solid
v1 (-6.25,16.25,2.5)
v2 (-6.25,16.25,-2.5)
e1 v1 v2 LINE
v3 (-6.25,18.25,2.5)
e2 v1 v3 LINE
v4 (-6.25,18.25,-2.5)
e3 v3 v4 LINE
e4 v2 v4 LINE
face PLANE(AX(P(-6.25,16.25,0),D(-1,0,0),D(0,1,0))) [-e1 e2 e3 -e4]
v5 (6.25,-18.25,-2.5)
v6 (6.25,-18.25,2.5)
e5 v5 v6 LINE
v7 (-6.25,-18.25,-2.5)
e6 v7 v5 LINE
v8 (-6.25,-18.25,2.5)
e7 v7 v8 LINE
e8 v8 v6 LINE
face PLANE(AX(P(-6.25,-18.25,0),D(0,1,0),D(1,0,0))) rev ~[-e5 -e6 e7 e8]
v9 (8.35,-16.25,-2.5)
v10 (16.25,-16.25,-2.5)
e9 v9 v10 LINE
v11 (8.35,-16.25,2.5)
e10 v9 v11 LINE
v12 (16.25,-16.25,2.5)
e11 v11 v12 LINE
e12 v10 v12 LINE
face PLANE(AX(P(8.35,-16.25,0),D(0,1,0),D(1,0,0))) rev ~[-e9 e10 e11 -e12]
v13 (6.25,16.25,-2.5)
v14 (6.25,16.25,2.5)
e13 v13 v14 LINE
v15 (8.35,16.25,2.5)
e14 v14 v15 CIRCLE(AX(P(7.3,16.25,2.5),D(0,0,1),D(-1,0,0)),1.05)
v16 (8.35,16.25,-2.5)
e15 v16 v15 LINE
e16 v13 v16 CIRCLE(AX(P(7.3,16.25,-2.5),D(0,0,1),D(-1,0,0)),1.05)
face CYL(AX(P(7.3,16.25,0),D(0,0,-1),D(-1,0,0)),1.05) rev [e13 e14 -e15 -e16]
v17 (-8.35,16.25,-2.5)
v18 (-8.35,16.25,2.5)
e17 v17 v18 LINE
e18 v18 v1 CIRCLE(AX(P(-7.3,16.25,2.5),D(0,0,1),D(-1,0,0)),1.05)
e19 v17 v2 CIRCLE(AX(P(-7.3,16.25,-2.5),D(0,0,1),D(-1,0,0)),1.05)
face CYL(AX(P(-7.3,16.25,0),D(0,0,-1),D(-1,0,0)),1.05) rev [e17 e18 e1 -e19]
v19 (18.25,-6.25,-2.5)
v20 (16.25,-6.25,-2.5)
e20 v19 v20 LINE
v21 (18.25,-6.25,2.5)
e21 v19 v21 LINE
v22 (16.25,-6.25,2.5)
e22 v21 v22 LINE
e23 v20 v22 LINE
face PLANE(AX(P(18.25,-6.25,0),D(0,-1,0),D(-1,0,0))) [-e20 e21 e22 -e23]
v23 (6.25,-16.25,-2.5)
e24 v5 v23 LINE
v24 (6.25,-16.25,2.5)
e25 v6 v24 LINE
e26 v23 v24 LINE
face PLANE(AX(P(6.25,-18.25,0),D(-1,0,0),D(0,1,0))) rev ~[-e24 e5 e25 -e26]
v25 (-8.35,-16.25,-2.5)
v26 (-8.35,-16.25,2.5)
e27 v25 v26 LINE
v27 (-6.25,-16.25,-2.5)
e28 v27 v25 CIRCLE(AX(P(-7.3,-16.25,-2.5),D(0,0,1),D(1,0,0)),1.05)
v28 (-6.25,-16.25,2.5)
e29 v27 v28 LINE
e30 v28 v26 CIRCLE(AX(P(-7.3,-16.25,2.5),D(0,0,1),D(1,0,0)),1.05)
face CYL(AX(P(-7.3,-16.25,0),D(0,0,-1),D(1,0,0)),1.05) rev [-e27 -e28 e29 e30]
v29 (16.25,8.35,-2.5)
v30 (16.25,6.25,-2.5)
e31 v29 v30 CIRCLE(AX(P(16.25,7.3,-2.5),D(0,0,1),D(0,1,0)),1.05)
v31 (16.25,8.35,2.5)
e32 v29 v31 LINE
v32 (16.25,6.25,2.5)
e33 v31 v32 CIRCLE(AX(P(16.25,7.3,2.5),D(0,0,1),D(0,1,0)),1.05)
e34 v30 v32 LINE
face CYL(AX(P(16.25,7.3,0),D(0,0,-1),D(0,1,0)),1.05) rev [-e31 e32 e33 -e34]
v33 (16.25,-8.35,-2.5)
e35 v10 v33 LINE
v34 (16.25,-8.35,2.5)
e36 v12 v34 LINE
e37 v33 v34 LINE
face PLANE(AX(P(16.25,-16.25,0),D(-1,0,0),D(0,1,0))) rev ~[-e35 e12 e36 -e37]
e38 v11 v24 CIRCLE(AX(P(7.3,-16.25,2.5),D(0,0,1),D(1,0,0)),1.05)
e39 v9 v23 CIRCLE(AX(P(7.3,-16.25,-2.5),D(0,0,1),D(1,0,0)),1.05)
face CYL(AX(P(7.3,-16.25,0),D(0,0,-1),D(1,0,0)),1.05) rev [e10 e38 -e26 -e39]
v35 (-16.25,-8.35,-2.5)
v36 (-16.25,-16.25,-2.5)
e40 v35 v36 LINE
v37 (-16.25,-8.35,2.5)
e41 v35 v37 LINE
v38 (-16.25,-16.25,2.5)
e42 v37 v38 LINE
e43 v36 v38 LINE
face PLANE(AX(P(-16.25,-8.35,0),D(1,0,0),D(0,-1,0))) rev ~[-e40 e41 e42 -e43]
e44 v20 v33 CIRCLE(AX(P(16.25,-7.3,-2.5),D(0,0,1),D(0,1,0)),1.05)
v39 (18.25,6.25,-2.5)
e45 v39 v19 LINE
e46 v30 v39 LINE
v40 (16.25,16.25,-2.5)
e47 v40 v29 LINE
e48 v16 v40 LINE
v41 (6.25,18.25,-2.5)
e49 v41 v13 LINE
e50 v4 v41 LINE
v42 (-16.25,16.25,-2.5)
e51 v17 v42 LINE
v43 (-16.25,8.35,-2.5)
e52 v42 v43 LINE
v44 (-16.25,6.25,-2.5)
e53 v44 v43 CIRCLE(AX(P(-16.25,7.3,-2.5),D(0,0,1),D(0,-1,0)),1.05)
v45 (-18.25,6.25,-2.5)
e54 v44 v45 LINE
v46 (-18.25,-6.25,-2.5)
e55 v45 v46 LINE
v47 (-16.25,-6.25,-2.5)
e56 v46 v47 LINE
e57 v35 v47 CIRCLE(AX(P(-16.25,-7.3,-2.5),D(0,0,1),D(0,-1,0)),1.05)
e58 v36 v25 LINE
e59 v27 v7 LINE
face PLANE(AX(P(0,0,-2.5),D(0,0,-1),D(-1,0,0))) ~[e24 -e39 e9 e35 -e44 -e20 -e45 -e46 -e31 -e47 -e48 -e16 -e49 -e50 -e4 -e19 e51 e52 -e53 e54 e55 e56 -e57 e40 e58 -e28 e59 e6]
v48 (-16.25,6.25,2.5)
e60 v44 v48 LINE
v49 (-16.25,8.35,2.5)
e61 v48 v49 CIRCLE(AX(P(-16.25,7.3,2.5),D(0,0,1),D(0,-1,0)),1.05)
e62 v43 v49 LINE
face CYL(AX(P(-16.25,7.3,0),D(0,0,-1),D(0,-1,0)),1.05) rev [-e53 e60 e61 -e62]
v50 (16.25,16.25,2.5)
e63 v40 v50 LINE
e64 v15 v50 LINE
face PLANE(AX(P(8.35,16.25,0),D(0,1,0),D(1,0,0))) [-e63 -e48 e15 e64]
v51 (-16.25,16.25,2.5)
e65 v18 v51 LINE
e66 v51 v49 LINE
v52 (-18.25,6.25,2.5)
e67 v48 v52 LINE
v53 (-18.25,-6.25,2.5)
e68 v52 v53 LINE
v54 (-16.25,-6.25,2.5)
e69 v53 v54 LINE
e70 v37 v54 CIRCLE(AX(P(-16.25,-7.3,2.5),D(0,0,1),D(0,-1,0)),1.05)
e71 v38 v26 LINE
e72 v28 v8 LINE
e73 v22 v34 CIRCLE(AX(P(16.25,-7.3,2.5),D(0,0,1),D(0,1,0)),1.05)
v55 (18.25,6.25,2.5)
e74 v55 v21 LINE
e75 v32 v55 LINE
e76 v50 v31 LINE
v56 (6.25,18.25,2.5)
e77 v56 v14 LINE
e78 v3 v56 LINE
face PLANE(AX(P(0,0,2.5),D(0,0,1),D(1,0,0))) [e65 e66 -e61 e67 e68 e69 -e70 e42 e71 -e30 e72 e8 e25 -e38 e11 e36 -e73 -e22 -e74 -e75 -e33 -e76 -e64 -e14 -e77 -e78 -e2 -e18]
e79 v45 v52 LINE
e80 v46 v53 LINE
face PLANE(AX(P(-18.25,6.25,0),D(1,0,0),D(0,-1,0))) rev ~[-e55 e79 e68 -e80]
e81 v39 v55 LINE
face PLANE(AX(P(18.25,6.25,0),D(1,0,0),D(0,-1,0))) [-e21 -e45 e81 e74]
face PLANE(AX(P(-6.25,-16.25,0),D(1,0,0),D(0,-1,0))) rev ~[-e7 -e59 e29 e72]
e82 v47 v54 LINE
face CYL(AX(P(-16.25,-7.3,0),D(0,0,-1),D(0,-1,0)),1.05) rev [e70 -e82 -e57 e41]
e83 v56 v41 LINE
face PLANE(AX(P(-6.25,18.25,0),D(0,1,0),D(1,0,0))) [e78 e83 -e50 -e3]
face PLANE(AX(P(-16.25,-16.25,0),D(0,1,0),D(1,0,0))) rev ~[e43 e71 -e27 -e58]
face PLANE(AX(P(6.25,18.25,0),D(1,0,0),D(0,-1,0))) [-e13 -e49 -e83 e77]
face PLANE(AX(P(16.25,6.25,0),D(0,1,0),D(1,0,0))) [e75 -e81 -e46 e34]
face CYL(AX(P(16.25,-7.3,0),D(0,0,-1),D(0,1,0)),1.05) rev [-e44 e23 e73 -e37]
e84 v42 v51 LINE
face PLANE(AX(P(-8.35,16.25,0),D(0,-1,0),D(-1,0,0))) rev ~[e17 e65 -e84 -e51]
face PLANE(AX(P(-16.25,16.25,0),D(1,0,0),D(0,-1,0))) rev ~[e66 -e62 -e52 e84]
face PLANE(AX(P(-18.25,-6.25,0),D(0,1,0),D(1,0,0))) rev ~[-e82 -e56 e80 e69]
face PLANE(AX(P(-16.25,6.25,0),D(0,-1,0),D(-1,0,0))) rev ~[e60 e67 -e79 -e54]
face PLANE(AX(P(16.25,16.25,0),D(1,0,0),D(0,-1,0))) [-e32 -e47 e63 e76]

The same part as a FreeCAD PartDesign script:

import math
import FreeCAD as App
import Part
import Sketcher
from FreeCAD import Vector
Q = App.Units.Quantity

doc = App.newDocument("Part")
params = doc.addObject("Spreadsheet::Sheet", "Params")
for row, (alias, value) in enumerate([
    ("sketch1_width", "2 mm"),
    ("sketch1_radius", "1.05 mm"),
    ("pad1_length", "2.5 mm"),
], start=1):
    params.set(f"A{row}", alias)
    params.set(f"B{row}", "=" + value)
    params.setAlias(f"B{row}", alias)

body = doc.addObject("PartDesign::Body", "Body")

sketch1 = body.newObject("Sketcher::SketchObject", "Sketch")
sketch1.AttachmentSupport = (doc.getObject("XY_Plane"), [""])
sketch1.MapMode = "FlatFace"
sketch1.addGeometry([
    Part.ArcOfCircle(Part.Circle(Vector(-7.3, 16.2, 0), Vector(0, 0, 1), 1), math.radians(180), math.radians(360)),
    Part.LineSegment(Vector(-8.3, 16.2, 0), Vector(-16.2, 16.2, 0)),
    Part.LineSegment(Vector(-16.2, 16.2, 0), Vector(-16.2, 8.3, 0)),
    Part.ArcOfCircle(Part.Circle(Vector(-16.2, 7.3, 0), Vector(0, 0, 1), 1), math.radians(-90), math.radians(90)),
    Part.LineSegment(Vector(-16.2, 6.2, 0), Vector(-18.2, 6.2, 0)),
    Part.LineSegment(Vector(-18.2, 6.2, 0), Vector(-18.2, -6.2, 0)),
    Part.LineSegment(Vector(-18.2, -6.2, 0), Vector(-16.2, -6.2, 0)),
    Part.ArcOfCircle(Part.Circle(Vector(-16.2, -7.3, 0), Vector(0, 0, 1), 1), math.radians(-90), math.radians(90)),
    Part.LineSegment(Vector(-16.2, -8.3, 0), Vector(-16.2, -16.2, 0)),
    Part.LineSegment(Vector(-16.2, -16.2, 0), Vector(-8.3, -16.2, 0)),
    Part.ArcOfCircle(Part.Circle(Vector(-7.3, -16.2, 0), Vector(0, 0, 1), 1), math.radians(0), math.radians(180)),
    Part.LineSegment(Vector(-6.2, -16.2, 0), Vector(-6.2, -18.2, 0)),
    Part.LineSegment(Vector(-6.2, -18.2, 0), Vector(6.2, -18.2, 0)),
    Part.LineSegment(Vector(6.2, -18.2, 0), Vector(6.2, -16.2, 0)),
    Part.ArcOfCircle(Part.Circle(Vector(7.3, -16.2, 0), Vector(0, 0, 1), 1), math.radians(0), math.radians(180)),
    Part.LineSegment(Vector(8.3, -16.2, 0), Vector(16.2, -16.2, 0)),
    Part.LineSegment(Vector(16.2, -16.2, 0), Vector(16.2, -8.3, 0)),
    Part.ArcOfCircle(Part.Circle(Vector(16.2, -7.3, 0), Vector(0, 0, 1), 1), math.radians(90), math.radians(270)),
    Part.LineSegment(Vector(16.2, -6.2, 0), Vector(18.2, -6.2, 0)),
    Part.LineSegment(Vector(18.2, -6.2, 0), Vector(18.2, 6.2, 0)),
    Part.LineSegment(Vector(18.2, 6.2, 0), Vector(16.2, 6.2, 0)),
    Part.ArcOfCircle(Part.Circle(Vector(16.2, 7.3, 0), Vector(0, 0, 1), 1), math.radians(90), math.radians(270)),
    Part.LineSegment(Vector(16.2, 8.3, 0), Vector(16.2, 16.2, 0)),
    Part.LineSegment(Vector(16.2, 16.2, 0), Vector(8.3, 16.2, 0)),
    Part.ArcOfCircle(Part.Circle(Vector(7.3, 16.2, 0), Vector(0, 0, 1), 1), math.radians(180), math.radians(360)),
    Part.LineSegment(Vector(6.2, 16.2, 0), Vector(6.2, 18.2, 0)),
    Part.LineSegment(Vector(6.2, 18.2, 0), Vector(-6.2, 18.2, 0)),
    Part.LineSegment(Vector(-6.2, 18.2, 0), Vector(-6.2, 16.2, 0)),
], False)
sketch1.addConstraint([
    Sketcher.Constraint("Coincident", 0, 1, 1, 1),
    Sketcher.Constraint("Coincident", 1, 2, 2, 1),
    Sketcher.Constraint("Coincident", 2, 2, 3, 2),
    Sketcher.Constraint("Tangent", 3, 1, 4, 1),
    Sketcher.Constraint("Coincident", 4, 2, 5, 1),
    Sketcher.Constraint("Coincident", 5, 2, 6, 1),
    Sketcher.Constraint("Tangent", 6, 2, 7, 2),
    Sketcher.Constraint("Coincident", 7, 1, 8, 1),
    Sketcher.Constraint("Coincident", 8, 2, 9, 1),
    Sketcher.Constraint("Coincident", 9, 2, 10, 2),
    Sketcher.Constraint("Tangent", 10, 1, 11, 1),
    Sketcher.Constraint("Coincident", 11, 2, 12, 1),
    Sketcher.Constraint("Coincident", 12, 2, 13, 1),
    Sketcher.Constraint("Tangent", 13, 2, 14, 2),
    Sketcher.Constraint("Coincident", 14, 1, 15, 1),
    Sketcher.Constraint("Coincident", 15, 2, 16, 1),
    Sketcher.Constraint("Coincident", 16, 2, 17, 2),
    Sketcher.Constraint("Tangent", 17, 1, 18, 1),
    Sketcher.Constraint("Coincident", 18, 2, 19, 1),
    Sketcher.Constraint("Coincident", 19, 2, 20, 1),
    Sketcher.Constraint("Tangent", 20, 2, 21, 2),
    Sketcher.Constraint("Coincident", 21, 1, 22, 1),
    Sketcher.Constraint("Coincident", 22, 2, 23, 1),
    Sketcher.Constraint("Coincident", 23, 2, 24, 2),
    Sketcher.Constraint("Tangent", 24, 1, 25, 1),
    Sketcher.Constraint("Coincident", 25, 2, 26, 1),
    Sketcher.Constraint("Coincident", 26, 2, 27, 1),
    Sketcher.Constraint("Tangent", 27, 2, 0, 2),
    Sketcher.Constraint("Horizontal", 1),
    Sketcher.Constraint("Vertical", 2),
    Sketcher.Constraint("Horizontal", 4),
    Sketcher.Constraint("Vertical", 5),
    Sketcher.Constraint("Horizontal", 6),
    Sketcher.Constraint("Vertical", 8),
    Sketcher.Constraint("Horizontal", 9),
    Sketcher.Constraint("Vertical", 11),
    Sketcher.Constraint("Horizontal", 12),
    Sketcher.Constraint("Vertical", 13),
    Sketcher.Constraint("Horizontal", 15),
    Sketcher.Constraint("Vertical", 16),
    Sketcher.Constraint("Horizontal", 18),
    Sketcher.Constraint("Vertical", 19),
    Sketcher.Constraint("Horizontal", 20),
    Sketcher.Constraint("Vertical", 22),
    Sketcher.Constraint("Horizontal", 23),
    Sketcher.Constraint("Vertical", 25),
    Sketcher.Constraint("Horizontal", 26),
    Sketcher.Constraint("Vertical", 27),
    Sketcher.Constraint("Equal", 0, 3),
    Sketcher.Constraint("Equal", 3, 7),
    Sketcher.Constraint("Equal", 7, 10),
    Sketcher.Constraint("Equal", 10, 14),
    Sketcher.Constraint("Equal", 14, 17),
    Sketcher.Constraint("Equal", 17, 21),
    Sketcher.Constraint("Equal", 21, 24),
    Sketcher.Constraint("Symmetric", 0, 3, 14, 3, -1, 1),
    Sketcher.Constraint("Symmetric", 3, 3, 17, 3, -1, 1),
    Sketcher.Constraint("Symmetric", 7, 3, 21, 3, -1, 1),
    Sketcher.Constraint("Symmetric", 10, 3, 24, 3, -1, 1),
    Sketcher.Constraint("Symmetric", 1, 2, 15, 2, -1, 1),
    Sketcher.Constraint("Symmetric", 8, 2, 22, 2, -1, 1),
    Sketcher.Constraint("Symmetric", 10, 3, 14, 3, -2),
    Sketcher.Constraint("Symmetric", 7, 3, 17, 3, -2),
    Sketcher.Constraint("Symmetric", 8, 2, 15, 2, -2),
    Sketcher.Constraint("Horizontal", 24, 3, 0, 1),
    Sketcher.Constraint("Vertical", 7, 3, 1, 2),
    Sketcher.Constraint("Equal", 6, 18),
    Sketcher.Constraint("Equal", 23, 2),
    Sketcher.Constraint("Equal", 26, 5),
    Sketcher.Constraint("Equal", 20, 11),
    Sketcher.Constraint("Equal", 13, 25),
    Sketcher.Constraint("DistanceX", 4, 2, 4, 1, Q("2 mm")),
    Sketcher.Constraint("Radius", 0, Q("1.05 mm")),
    Sketcher.Constraint("DistanceY", 3, 1, 1, 2, Q("10 mm")),
    Sketcher.Constraint("DistanceY", 10, 3, 0, 3, Q("32.5 mm")),
])
sketch1.setExpression("Constraints[71]", "Params.sketch1_width")
sketch1.setExpression("Constraints[72]", "Params.sketch1_radius")
pad1 = body.newObject("PartDesign::Pad", "Pad")
pad1.Profile = sketch1
pad1.setExpression("Length", "Params.pad1_length")
doc.recompute()

mirrored = body.newObject("PartDesign::Mirrored", "Mirrored")
mirrored.Originals = [pad1]
mirrored.MirrorPlane = (doc.getObject("XY_Plane"), [""])
body.Tip = mirrored

doc.recompute()
